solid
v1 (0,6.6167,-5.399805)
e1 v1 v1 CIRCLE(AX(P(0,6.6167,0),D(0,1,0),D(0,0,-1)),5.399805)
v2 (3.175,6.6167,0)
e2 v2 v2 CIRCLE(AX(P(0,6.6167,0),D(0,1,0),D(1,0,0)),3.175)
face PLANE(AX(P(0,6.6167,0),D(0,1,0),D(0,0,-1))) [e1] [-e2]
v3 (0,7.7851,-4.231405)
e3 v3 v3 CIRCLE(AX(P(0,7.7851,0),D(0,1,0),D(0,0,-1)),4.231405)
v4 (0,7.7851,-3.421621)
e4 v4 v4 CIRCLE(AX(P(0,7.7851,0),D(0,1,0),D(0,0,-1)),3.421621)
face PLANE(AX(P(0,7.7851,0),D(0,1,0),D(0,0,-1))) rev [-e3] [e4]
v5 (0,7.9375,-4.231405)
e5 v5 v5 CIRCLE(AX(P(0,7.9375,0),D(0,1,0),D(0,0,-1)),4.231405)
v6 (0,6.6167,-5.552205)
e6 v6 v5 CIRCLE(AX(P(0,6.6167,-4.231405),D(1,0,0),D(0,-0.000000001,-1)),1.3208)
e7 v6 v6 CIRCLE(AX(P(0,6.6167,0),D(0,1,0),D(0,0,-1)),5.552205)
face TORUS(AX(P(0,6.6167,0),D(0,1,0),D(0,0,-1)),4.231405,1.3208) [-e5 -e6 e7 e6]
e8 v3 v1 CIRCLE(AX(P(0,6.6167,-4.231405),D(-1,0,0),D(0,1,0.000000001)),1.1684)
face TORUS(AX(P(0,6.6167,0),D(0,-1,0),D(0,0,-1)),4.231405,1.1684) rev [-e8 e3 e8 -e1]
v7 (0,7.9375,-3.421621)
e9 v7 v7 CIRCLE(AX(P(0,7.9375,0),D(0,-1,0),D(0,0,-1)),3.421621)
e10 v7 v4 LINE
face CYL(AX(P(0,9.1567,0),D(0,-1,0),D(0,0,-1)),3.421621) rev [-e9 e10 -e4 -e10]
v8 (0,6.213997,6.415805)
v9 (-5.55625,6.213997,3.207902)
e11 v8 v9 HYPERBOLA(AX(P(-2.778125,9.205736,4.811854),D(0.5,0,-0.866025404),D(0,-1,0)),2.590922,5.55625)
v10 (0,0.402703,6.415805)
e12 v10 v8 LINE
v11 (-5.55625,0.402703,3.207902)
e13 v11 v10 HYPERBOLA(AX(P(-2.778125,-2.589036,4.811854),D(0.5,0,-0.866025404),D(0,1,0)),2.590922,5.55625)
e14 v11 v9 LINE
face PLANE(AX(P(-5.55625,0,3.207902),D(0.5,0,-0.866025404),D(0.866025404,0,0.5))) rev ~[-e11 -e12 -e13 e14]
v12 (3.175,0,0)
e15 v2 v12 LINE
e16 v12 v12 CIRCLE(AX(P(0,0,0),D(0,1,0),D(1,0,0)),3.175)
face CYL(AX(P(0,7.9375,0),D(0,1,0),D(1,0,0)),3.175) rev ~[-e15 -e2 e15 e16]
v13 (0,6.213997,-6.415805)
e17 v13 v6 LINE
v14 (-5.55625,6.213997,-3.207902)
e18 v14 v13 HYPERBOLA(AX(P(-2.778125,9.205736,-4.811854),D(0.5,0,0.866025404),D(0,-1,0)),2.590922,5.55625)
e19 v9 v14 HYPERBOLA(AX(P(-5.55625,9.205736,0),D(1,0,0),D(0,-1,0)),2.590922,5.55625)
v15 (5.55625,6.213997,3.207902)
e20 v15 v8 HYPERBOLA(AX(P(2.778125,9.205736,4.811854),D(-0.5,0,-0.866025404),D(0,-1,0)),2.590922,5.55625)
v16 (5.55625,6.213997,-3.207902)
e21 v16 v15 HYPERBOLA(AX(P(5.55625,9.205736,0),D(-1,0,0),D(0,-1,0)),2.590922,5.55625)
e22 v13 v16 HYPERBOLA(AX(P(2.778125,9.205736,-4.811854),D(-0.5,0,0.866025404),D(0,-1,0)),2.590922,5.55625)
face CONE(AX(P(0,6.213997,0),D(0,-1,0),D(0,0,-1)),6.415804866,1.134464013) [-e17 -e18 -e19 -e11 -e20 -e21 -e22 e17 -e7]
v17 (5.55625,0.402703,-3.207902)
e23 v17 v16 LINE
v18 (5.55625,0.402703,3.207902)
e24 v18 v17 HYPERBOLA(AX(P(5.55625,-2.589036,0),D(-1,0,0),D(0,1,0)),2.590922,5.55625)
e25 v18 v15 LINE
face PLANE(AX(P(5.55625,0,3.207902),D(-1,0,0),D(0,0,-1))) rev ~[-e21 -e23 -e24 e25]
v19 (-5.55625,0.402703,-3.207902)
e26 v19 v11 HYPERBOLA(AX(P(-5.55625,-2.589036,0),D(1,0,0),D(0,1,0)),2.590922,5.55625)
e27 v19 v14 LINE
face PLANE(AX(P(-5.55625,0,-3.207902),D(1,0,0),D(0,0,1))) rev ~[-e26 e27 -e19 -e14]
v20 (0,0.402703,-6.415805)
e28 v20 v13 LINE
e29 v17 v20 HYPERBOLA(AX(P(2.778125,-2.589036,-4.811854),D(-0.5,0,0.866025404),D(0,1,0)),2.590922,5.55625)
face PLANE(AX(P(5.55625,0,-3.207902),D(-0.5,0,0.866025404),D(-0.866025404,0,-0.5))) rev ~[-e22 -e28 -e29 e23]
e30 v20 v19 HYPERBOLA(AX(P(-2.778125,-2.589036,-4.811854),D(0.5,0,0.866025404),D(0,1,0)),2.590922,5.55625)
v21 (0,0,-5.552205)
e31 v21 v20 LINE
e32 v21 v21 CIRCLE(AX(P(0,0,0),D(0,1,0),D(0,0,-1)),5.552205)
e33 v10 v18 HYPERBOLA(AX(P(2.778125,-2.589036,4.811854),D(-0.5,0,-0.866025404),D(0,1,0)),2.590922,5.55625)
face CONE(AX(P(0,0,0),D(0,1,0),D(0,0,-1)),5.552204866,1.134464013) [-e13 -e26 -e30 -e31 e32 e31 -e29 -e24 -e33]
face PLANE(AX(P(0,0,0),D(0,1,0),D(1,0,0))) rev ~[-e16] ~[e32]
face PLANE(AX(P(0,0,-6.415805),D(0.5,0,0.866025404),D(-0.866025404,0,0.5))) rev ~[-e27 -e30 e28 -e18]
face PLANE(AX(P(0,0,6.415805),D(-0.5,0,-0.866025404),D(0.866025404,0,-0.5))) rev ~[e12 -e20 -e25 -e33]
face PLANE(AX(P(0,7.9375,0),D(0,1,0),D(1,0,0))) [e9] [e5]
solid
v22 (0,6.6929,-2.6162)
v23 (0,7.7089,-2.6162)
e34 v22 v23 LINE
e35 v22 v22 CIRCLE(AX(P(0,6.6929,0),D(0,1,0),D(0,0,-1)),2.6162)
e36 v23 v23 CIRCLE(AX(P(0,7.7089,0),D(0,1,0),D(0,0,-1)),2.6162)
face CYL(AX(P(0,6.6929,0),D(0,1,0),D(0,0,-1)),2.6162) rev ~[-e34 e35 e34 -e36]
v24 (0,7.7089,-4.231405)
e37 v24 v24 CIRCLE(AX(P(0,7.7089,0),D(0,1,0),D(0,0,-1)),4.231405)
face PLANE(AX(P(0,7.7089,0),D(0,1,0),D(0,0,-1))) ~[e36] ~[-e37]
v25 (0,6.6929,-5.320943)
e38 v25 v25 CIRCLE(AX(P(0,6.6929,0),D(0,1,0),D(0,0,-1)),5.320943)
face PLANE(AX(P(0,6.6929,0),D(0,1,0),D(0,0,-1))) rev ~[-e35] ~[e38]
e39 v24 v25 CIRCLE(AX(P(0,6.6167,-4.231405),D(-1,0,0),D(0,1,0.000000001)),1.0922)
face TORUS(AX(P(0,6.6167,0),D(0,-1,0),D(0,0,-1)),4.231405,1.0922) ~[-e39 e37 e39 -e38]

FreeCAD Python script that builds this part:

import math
import FreeCAD as App
import Part
import Sketcher
from FreeCAD import Vector
Q = App.Units.Quantity

doc = App.newDocument("Part")
body = doc.addObject("PartDesign::Body", "Body")

sketch1 = body.newObject("Sketcher::SketchObject", "Sketch")
sketch1.AttachmentSupport = (doc.getObject("XZ_Plane"), [""])
sketch1.MapMode = "FlatFace"
sketch1.addGeometry(Part.LineSegment(Vector(0, -6, 0), Vector(-6, -3, 0)), False)
sketch1.addGeometry(Part.LineSegment(Vector(-6, -3, 0), Vector(-6, 3, 0)), False)
sketch1.addGeometry(Part.LineSegment(Vector(-6, 3, 0), Vector(0, 6, 0)), False)
sketch1.addGeometry(Part.LineSegment(Vector(0, 6, 0), Vector(6, 3, 0)), False)
sketch1.addGeometry(Part.LineSegment(Vector(6, 3, 0), Vector(6, -3, 0)), False)
sketch1.addGeometry(Part.LineSegment(Vector(6, -3, 0), Vector(0, -6, 0)), False)
sketch1.addConstraint(Sketcher.Constraint("Coincident", 0, 2, 1, 1))
sketch1.addConstraint(Sketcher.Constraint("Coincident", 1, 2, 2, 1))
sketch1.addConstraint(Sketcher.Constraint("Coincident", 2, 2, 3, 1))
sketch1.addConstraint(Sketcher.Constraint("Coincident", 3, 2, 4, 1))
sketch1.addConstraint(Sketcher.Constraint("Coincident", 4, 2, 5, 1))
sketch1.addConstraint(Sketcher.Constraint("Coincident", 5, 2, 0, 1))
sketch1.addConstraint(Sketcher.Constraint("Vertical", 1))
sketch1.addConstraint(Sketcher.Constraint("Vertical", 4))
sketch1.addConstraint(Sketcher.Constraint("Symmetric", 0, 2, 3, 2, -1, 1))
sketch1.addConstraint(Sketcher.Constraint("Symmetric", 2, 2, 5, 2, -1, 1))
sketch1.addConstraint(Sketcher.Constraint("PointOnObject", 2, 2, -2))
sketch1.addConstraint(Sketcher.Constraint("Parallel", 2, 5))
sketch1.addConstraint(Sketcher.Constraint("Horizontal", 1, 2, 3, 2))
sketch1.addConstraint(Sketcher.Constraint("Angle", 0, Q("150 deg")))
sketch1.addConstraint(Sketcher.Constraint("DistanceX", 0, 2, -1, 1, Q("0.21875 in")))
sketch1.addConstraint(Sketcher.Constraint("DistanceY", 1, 1, 1, 2, 6.415805))
pad1 = body.newObject("PartDesign::Pad", "Pad")
pad1.Profile = sketch1
pad1.Length = Q("0.3125 in")
pad1.Reversed = True

sketch2 = body.newObject("Sketcher::SketchObject", "Sketch001")
sketch2.AttachmentSupport = (doc.getObject("XZ_Plane"), [""])
sketch2.MapMode = "FlatFace"
sketch2.AttachmentOffset = App.Placement(Vector(0, 0, -0.3125 * 25.4), App.Rotation())
sketch2.addGeometry(Part.Circle(Vector(0, 0, 0), Vector(0, 0, 1), 3.2), False)
sketch2.addConstraint(Sketcher.Constraint("Coincident", 0, 3, -1, 1))
sketch2.addConstraint(Sketcher.Constraint("Diameter", 0, Q("0.25 in")))
pocket1 = body.newObject("PartDesign::Pocket", "Pocket")
pocket1.Profile = sketch2
pocket1.Type = "ThroughAll"
pocket1.Reversed = True

sketch3 = body.newObject("Sketcher::SketchObject", "Sketch002")
sketch3.AttachmentSupport = (doc.getObject("YZ_Plane"), [""])
sketch3.MapMode = "FlatFace"
sketch3.addGeometry(Part.LineSegment(Vector(0, -5.6, 0), Vector(0, 0, 0)), False)
sketch3.addGeometry(Part.LineSegment(Vector(0, 0, 0), Vector(-1.3, 0, 0)), False)
sketch3.addGeometry(Part.LineSegment(Vector(-1.3, 0, 0), Vector(-1.3, -7.7, 0)), False)
sketch3.addGeometry(Part.LineSegment(Vector(-1.3, -7.7, 0), Vector(9.2, -7.7, 0)), False)
sketch3.addGeometry(Part.LineSegment(Vector(9.2, -7.7, 0), Vector(9.2, -4.2, 0)), False)
sketch3.addGeometry(Part.LineSegment(Vector(9.2, -4.2, 0), Vector(7.9, -4.2, 0)), False)
sketch3.addGeometry(Part.ArcOfCircle(Part.Circle(Vector(6.6, -4.2, 0), Vector(0, 0, 1), 1.3), math.radians(-90), math.radians(0)), False)
sketch3.addGeometry(Part.LineSegment(Vector(6.6, -5.6, 0), Vector(6.2, -6.4, 0)), False)
sketch3.addGeometry(Part.LineSegment(Vector(6.2, -6.4, 0), Vector(0.4, -6.4, 0)), False)
sketch3.addGeometry(Part.LineSegment(Vector(0.4, -6.4, 0), Vector(0, -5.6, 0)), False)
sketch3.addConstraint(Sketcher.Constraint("Coincident", 0, 2, 1, 1))
sketch3.addConstraint(Sketcher.Constraint("Coincident", 1, 2, 2, 1))
sketch3.addConstraint(Sketcher.Constraint("Coincident", 2, 2, 3, 1))
sketch3.addConstraint(Sketcher.Constraint("Coincident", 3, 2, 4, 1))
sketch3.addConstraint(Sketcher.Constraint("Coincident", 4, 2, 5, 1))
sketch3.addConstraint(Sketcher.Constraint("Coincident", 5, 2, 6, 2))
sketch3.addConstraint(Sketcher.Constraint("Coincident", 6, 1, 7, 1))
sketch3.addConstraint(Sketcher.Constraint("Coincident", 7, 2, 8, 1))
sketch3.addConstraint(Sketcher.Constraint("Coincident", 8, 2, 9, 1))
sketch3.addConstraint(Sketcher.Constraint("Coincident", 9, 2, 0, 1))
sketch3.addConstraint(Sketcher.Constraint("Vertical", 0))
sketch3.addConstraint(Sketcher.Constraint("Horizontal", 1))
sketch3.addConstraint(Sketcher.Constraint("Vertical", 2))
sketch3.addConstraint(Sketcher.Constraint("Horizontal", 3))
sketch3.addConstraint(Sketcher.Constraint("Vertical", 4))
sketch3.addConstraint(Sketcher.Constraint("Horizontal", 5))
sketch3.addConstraint(Sketcher.Constraint("Horizontal", 8))
sketch3.addConstraint(Sketcher.Constraint("Coincident", 0, 2, -1, 1))
sketch3.addConstraint(Sketcher.Constraint("Horizontal", 6, 3, 4, 2))
sketch3.addConstraint(Sketcher.Constraint("Horizontal", 6, 1, 9, 2))
sketch3.addConstraint(Sketcher.Constraint("Equal", 1, 5))
sketch3.addConstraint(Sketcher.Constraint("Equal", 7, 9))
sketch3.addConstraint(Sketcher.Constraint("Angle", 7, Q("-115 deg")))
sketch3.addConstraint(Sketcher.Constraint("Radius", 6, Q("0.052 in")))
sketch3.addConstraint(Sketcher.Constraint("DistanceX", 1, 2, 1, 1, Q("0.05 in")))
sketch3.addConstraint(Sketcher.Constraint("DistanceY", 4, 1, 4, 2, Q("0.136 in")))
sketch3.addConstraint(Sketcher.Constraint("DistanceY", 3, 2, 7, 2, Q("0.05 in")))
sketch3.addConstraint(Sketcher.Constraint("DistanceX", 3, 1, 3, 2, Q("0.4125 in")))
sketch3.addConstraint(Sketcher.Constraint("DistanceX", 6, 1, 5, 2, Q("0.052 in")))
sketch3.addConstraint(Sketcher.Constraint("DistanceY", 0, 1, 0, 2, 5.552205))
groove = body.newObject("PartDesign::Groove", "Groove")
groove.Profile = sketch3
groove.ReferenceAxis = (sketch3, ["H_Axis"])
groove.Angle = 360

sketch4 = body.newObject("Sketcher::SketchObject", "Sketch003")
sketch4.AttachmentSupport = (doc.getObject("YZ_Plane"), [""])
sketch4.MapMode = "FlatFace"
sketch4.addGeometry(Part.LineSegment(Vector(6.6, 0, 0), Vector(6.6, -5.4, 0)), False)
sketch4.addGeometry(Part.ArcOfCircle(Part.Circle(Vector(6.6, -4.2, 0), Vector(0, 0, 1), 1.2), math.radians(-90), math.radians(0)), False)
sketch4.addGeometry(Part.LineSegment(Vector(7.8, -4.2, 0), Vector(7.8, -3.4, 0)), False)
sketch4.addGeometry(Part.LineSegment(Vector(7.8, -3.4, 0), Vector(9.2, -3.4, 0)), False)
sketch4.addGeometry(Part.LineSegment(Vector(9.2, -3.4, 0), Vector(9.2, 0, 0)), False)
sketch4.addGeometry(Part.LineSegment(Vector(9.2, 0, 0), Vector(6.6, 0, 0)), False)
sketch4.addConstraint(Sketcher.Constraint("Coincident", 0, 2, 1, 1))
sketch4.addConstraint(Sketcher.Constraint("Tangent", 1, 2, 2, 1))
sketch4.addConstraint(Sketcher.Constraint("Coincident", 2, 2, 3, 1))
sketch4.addConstraint(Sketcher.Constraint("Coincident", 3, 2, 4, 1))
sketch4.addConstraint(Sketcher.Constraint("Coincident", 4, 2, 5, 1))
sketch4.addConstraint(Sketcher.Constraint("Coincident", 5, 2, 0, 1))
sketch4.addConstraint(Sketcher.Constraint("Vertical", 0))
sketch4.addConstraint(Sketcher.Constraint("Vertical", 2))
sketch4.addConstraint(Sketcher.Constraint("Horizontal", 3))
sketch4.addConstraint(Sketcher.Constraint("Vertical", 4))
sketch4.addConstraint(Sketcher.Constraint("Horizontal", 5))
sketch4.addConstraint(Sketcher.Constraint("PointOnObject", 4, 2, -1))
sketch4.addConstraint(Sketcher.Constraint("Vertical", 1, 3, 0, 2))
sketch4.addConstraint(Sketcher.Constraint("DistanceX", 5, 2, 5, 1, Q("0.1 in")))
sketch4.addConstraint(Sketcher.Constraint("Radius", 1, Q("0.046 in")))
sketch4.addConstraint(Sketcher.Constraint("DistanceX", -1, 1, 1, 3, Q("0.2605 in")))
sketch4.addConstraint(Sketcher.Constraint("DistanceY", 4, 1, 4, 2, 3.421621))
sketch4.addConstraint(Sketcher.Constraint("DistanceY", 0, 2, 0, 1, 5.399805))
groove2 = body.newObject("PartDesign::Groove", "Groove001")
groove2.Profile = sketch4
groove2.ReferenceAxis = (sketch4, ["H_Axis"])
groove2.Angle = 360
body2 = doc.addObject("PartDesign::Body", "Body001")

sketch5 = body2.newObject("Sketcher::SketchObject", "Sketch004")
sketch5.AttachmentSupport = (doc.getObject("YZ_Plane001"), [""])
sketch5.MapMode = "FlatFace"
sketch5.addGeometry(Part.LineSegment(Vector(7.7, -2.6, 0), Vector(6.7, -2.6, 0)), False)
sketch5.addGeometry(Part.LineSegment(Vector(6.7, -2.6, 0), Vector(6.7, -5.3, 0)), False)
sketch5.addGeometry(Part.ArcOfCircle(Part.Circle(Vector(6.6, -4.2, 0), Vector(0, 0, 1), 1.1), math.radians(-86), math.radians(0)), False)
sketch5.addGeometry(Part.LineSegment(Vector(7.7, -4.2, 0), Vector(7.7, -2.6, 0)), False)
sketch5.addConstraint(Sketcher.Constraint("Coincident", 0, 2, 1, 1))
sketch5.addConstraint(Sketcher.Constraint("Coincident", 1, 2, 2, 1))
sketch5.addConstraint(Sketcher.Constraint("Tangent", 2, 2, 3, 1))
sketch5.addConstraint(Sketcher.Constraint("Coincident", 3, 2, 0, 1))
sketch5.addConstraint(Sketcher.Constraint("Horizontal", 0))
sketch5.addConstraint(Sketcher.Constraint("Vertical", 1))
sketch5.addConstraint(Sketcher.Constraint("Vertical", 3))
sketch5.addConstraint(Sketcher.Constraint("Radius", 2, Q("0.043 in")))
sketch5.addConstraint(Sketcher.Constraint("DistanceX", 0, 2, 0, 1, Q("0.04 in")))
sketch5.addConstraint(Sketcher.Constraint("DistanceY", 0, 2, -1, 1, Q("0.103 in")))
sketch5.addConstraint(Sketcher.Constraint("DistanceX", -1, 1, 2, 3, Q("0.2605 in")))
sketch5.addConstraint(Sketcher.Constraint("DistanceY", 1, 2, 1, 1, 2.704743))
revolution = body2.newObject("PartDesign::Revolution", "Revolution")
revolution.Profile = sketch5
revolution.ReferenceAxis = (sketch5, ["H_Axis"])
revolution.Angle = 360

doc.recompute()
